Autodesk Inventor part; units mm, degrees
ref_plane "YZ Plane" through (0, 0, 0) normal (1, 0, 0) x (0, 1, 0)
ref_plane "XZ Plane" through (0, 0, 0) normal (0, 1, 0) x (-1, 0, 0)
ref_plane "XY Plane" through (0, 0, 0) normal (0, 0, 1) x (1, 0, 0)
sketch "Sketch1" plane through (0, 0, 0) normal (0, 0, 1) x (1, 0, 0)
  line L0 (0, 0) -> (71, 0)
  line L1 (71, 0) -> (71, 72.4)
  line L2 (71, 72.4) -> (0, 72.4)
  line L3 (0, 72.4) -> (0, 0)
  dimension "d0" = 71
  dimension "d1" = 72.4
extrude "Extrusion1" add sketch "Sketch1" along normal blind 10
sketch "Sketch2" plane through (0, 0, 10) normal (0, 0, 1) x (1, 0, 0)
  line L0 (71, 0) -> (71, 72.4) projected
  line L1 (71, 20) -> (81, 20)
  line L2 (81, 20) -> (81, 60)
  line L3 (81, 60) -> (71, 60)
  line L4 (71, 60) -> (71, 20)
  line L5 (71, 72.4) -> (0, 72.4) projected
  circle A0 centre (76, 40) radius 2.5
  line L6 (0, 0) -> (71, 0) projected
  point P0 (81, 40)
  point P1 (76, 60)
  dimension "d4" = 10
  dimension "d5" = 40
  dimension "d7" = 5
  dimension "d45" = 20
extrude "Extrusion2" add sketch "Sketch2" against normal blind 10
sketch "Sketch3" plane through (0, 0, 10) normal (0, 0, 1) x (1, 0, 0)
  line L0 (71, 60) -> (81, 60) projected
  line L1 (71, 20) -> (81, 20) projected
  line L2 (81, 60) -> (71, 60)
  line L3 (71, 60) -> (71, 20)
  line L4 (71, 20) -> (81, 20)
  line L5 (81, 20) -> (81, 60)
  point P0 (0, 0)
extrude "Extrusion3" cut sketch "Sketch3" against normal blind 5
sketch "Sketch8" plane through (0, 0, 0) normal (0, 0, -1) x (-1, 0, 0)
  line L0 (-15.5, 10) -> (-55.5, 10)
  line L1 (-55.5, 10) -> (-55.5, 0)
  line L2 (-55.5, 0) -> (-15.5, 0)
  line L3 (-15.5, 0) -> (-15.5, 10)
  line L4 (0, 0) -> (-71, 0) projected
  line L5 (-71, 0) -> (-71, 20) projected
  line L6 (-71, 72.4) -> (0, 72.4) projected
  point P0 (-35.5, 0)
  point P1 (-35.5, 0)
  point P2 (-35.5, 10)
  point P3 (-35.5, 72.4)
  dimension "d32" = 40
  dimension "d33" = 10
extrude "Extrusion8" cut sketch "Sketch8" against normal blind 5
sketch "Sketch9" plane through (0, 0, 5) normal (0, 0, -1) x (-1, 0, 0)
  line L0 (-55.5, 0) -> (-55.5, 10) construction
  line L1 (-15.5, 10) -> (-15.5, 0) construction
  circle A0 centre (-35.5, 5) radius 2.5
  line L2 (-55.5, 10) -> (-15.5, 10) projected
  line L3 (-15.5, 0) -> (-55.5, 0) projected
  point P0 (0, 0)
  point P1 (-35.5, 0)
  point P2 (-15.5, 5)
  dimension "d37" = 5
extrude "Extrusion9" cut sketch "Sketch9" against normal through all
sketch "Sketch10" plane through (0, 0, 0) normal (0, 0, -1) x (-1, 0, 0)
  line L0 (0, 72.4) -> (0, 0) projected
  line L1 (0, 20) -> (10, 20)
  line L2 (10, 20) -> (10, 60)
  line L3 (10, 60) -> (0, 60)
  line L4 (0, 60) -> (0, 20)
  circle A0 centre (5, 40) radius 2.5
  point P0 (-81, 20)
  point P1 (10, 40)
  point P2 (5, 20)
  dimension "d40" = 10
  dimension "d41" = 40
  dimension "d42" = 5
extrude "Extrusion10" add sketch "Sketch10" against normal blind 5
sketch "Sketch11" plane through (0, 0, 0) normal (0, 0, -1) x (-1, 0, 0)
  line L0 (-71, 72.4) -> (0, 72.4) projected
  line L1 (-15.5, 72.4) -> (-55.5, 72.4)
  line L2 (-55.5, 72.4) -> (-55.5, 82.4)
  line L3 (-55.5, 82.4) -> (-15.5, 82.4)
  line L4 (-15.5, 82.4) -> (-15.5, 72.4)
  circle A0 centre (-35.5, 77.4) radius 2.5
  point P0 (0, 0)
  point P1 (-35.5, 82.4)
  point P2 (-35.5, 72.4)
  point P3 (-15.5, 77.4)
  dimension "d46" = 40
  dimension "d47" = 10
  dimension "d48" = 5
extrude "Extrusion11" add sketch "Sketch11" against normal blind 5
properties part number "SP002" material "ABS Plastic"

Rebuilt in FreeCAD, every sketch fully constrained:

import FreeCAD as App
import Part
import Sketcher
Q = App.Units.Quantity


def add_polygon(sketch, points):
    """Adds a closed chain of lines whose ends are joined by coincident constraints."""
    first, n = sketch.GeometryCount, len(points)
    for a, b in zip(points, points[1:] + points[:1]):
        sketch.addGeometry(Part.LineSegment(App.Vector(*a, 0), App.Vector(*b, 0)), False)
    for i in range(n):
        sketch.addConstraint(Sketcher.Constraint("Coincident", first + i, 2, first + (i + 1) % n, 1))

doc = App.newDocument("Part")
body = doc.addObject("PartDesign::Body", "Body")

sketch1 = body.newObject("Sketcher::SketchObject", "Sketch")
sketch1.AttachmentSupport = (doc.getObject("XY_Plane"), [""])
sketch1.MapMode = "FlatFace"
add_polygon(sketch1, [(0, 72.4), (0, 0), (71, 0), (71, 72.4)])
sketch1.addConstraint([
    Sketcher.Constraint("Vertical", 0),
    Sketcher.Constraint("Horizontal", 1),
    Sketcher.Constraint("Vertical", 2),
    Sketcher.Constraint("Horizontal", 3),
    Sketcher.Constraint("Coincident", 0, 2, -1, 1),
    Sketcher.Constraint("DistanceX", 1, 1, 1, 2, Q("71 mm")),
    Sketcher.Constraint("DistanceY", 0, 2, 0, 1, Q("72.4 mm")),
])
pad1 = body.newObject("PartDesign::Pad", "Pad")
pad1.Profile = sketch1
pad1.Length = 10

sketch2 = body.newObject("Sketcher::SketchObject", "Sketch001")
sketch2.AttachmentSupport = (doc.getObject("XY_Plane"), [""])
sketch2.MapMode = "FlatFace"
sketch2.AttachmentOffset = App.Placement(App.Vector(0, 0, 10), App.Rotation())
add_polygon(sketch2, [(71, 60), (71, 20), (81, 20), (81, 60)])
sketch2.addGeometry(Part.Circle(App.Vector(76, 40, 0), App.Vector(0, 0, 1), 2.5), False)
sketch2.addConstraint([
    Sketcher.Constraint("Vertical", 0),
    Sketcher.Constraint("Horizontal", 1),
    Sketcher.Constraint("Vertical", 2),
    Sketcher.Constraint("Horizontal", 3),
    Sketcher.Constraint("Diameter", 4, Q("5 mm")),
    Sketcher.Constraint("DistanceX", 1, 1, 1, 2, Q("10 mm")),
    Sketcher.Constraint("DistanceY", 0, 2, 0, 1, Q("40 mm")),
    Sketcher.Constraint("DistanceY", -1, 1, 4, 3, Q("40 mm")),
    Sketcher.Constraint("DistanceY", -1, 1, 0, 2, Q("20 mm")),
    Sketcher.Constraint("DistanceX", 0, 2, 4, 3, Q("5 mm")),
    Sketcher.Constraint("DistanceX", -1, 1, 4, 3, Q("76 mm")),
])
pad2 = body.newObject("PartDesign::Pad", "Pad001")
pad2.Profile = sketch2
pad2.Length = 10
pad2.Reversed = True

sketch3 = body.newObject("Sketcher::SketchObject", "Sketch002")
sketch3.AttachmentSupport = (doc.getObject("XY_Plane"), [""])
sketch3.MapMode = "FlatFace"
sketch3.AttachmentOffset = App.Placement(App.Vector(0, 0, 10), App.Rotation())
add_polygon(sketch3, [(81, 60), (71, 60), (71, 20), (81, 20)])
sketch3.addConstraint([
    Sketcher.Constraint("Horizontal", 0),
    Sketcher.Constraint("Vertical", 1),
    Sketcher.Constraint("Horizontal", 2),
    Sketcher.Constraint("Vertical", 3),
    Sketcher.Constraint("DistanceX", 0, 2, 0, 1, Q("10 mm")),
    Sketcher.Constraint("DistanceY", 1, 2, 1, 1, Q("40 mm")),
    Sketcher.Constraint("DistanceX", -1, 1, 0, 2, Q("71 mm")),
    Sketcher.Constraint("DistanceY", -1, 1, 0, 2, Q("60 mm")),
])
pocket1 = body.newObject("PartDesign::Pocket", "Pocket")
pocket1.Profile = sketch3
pocket1.Length = 5

sketch4 = body.newObject("Sketcher::SketchObject", "Sketch003")
sketch4.AttachmentSupport = (doc.getObject("XY_Plane"), [""])
sketch4.MapMode = "FlatFace"
add_polygon(sketch4, [(15.5, 0), (15.5, 10), (55.5, 10), (55.5, 0)])
sketch4.addConstraint([
    Sketcher.Constraint("Vertical", 0),
    Sketcher.Constraint("Horizontal", 1),
    Sketcher.Constraint("Vertical", 2),
    Sketcher.Constraint("Horizontal", 3),
    Sketcher.Constraint("PointOnObject", 2, 2, -1),
    Sketcher.Constraint("DistanceX", 1, 1, 1, 2, Q("40 mm")),
    Sketcher.Constraint("DistanceY", 0, 1, 0, 2, Q("10 mm")),
    Sketcher.Constraint("DistanceX", -1, 1, 0, 2, Q("15.5 mm")),
])
pocket2 = body.newObject("PartDesign::Pocket", "Pocket001")
pocket2.Profile = sketch4
pocket2.Length = 5
pocket2.Reversed = True

sketch5 = body.newObject("Sketcher::SketchObject", "Sketch004")
sketch5.AttachmentSupport = (doc.getObject("XY_Plane"), [""])
sketch5.MapMode = "FlatFace"
sketch5.AttachmentOffset = App.Placement(App.Vector(0, 0, 5), App.Rotation())
sketch5.addGeometry(Part.Circle(App.Vector(35.5, 5, 0), App.Vector(0, 0, 1), 2.5), False)
sketch5.addConstraint([
    Sketcher.Constraint("Diameter", 0, Q("5 mm")),
    Sketcher.Constraint("DistanceY", -1, 1, 0, 3, Q("5 mm")),
    Sketcher.Constraint("DistanceX", -1, 1, 0, 3, Q("35.5 mm")),
])
pocket3 = body.newObject("PartDesign::Pocket", "Pocket002")
pocket3.Profile = sketch5
pocket3.Type = "ThroughAll"
pocket3.Reversed = True

sketch6 = body.newObject("Sketcher::SketchObject", "Sketch005")
sketch6.AttachmentSupport = (doc.getObject("XY_Plane"), [""])
sketch6.MapMode = "FlatFace"
add_polygon(sketch6, [(-10, 60), (0, 60), (0, 20), (-10, 20)])
sketch6.addGeometry(Part.Circle(App.Vector(-5, 40, 0), App.Vector(0, 0, 1), 2.5), False)
sketch6.addConstraint([
    Sketcher.Constraint("Horizontal", 0),
    Sketcher.Constraint("Vertical", 1),
    Sketcher.Constraint("Horizontal", 2),
    Sketcher.Constraint("Vertical", 3),
    Sketcher.Constraint("PointOnObject", 0, 2, -2),
    Sketcher.Constraint("Diameter", 4, Q("5 mm")),
    Sketcher.Constraint("DistanceX", 0, 1, 0, 2, Q("10 mm")),
    Sketcher.Constraint("DistanceY", 1, 2, 1, 1, Q("40 mm")),
    Sketcher.Constraint("DistanceX", 4, 3, -1, 1, Q("5 mm")),
    Sketcher.Constraint("DistanceY", -1, 1, 4, 3, Q("40 mm")),
    Sketcher.Constraint("DistanceY", -1, 1, 0, 2, Q("60 mm")),
])
pad3 = body.newObject("PartDesign::Pad", "Pad002")
pad3.Profile = sketch6
pad3.Length = 5

sketch7 = body.newObject("Sketcher::SketchObject", "Sketch006")
sketch7.AttachmentSupport = (doc.getObject("XY_Plane"), [""])
sketch7.MapMode = "FlatFace"
add_polygon(sketch7, [(55.5, 82.4), (55.5, 72.4), (15.5, 72.4), (15.5, 82.4)])
sketch7.addGeometry(Part.Circle(App.Vector(35.5, 77.4, 0), App.Vector(0, 0, 1), 2.5), False)
sketch7.addConstraint([
    Sketcher.Constraint("Vertical", 0),
    Sketcher.Constraint("Horizontal", 1),
    Sketcher.Constraint("Vertical", 2),
    Sketcher.Constraint("Horizontal", 3),
    Sketcher.Constraint("Diameter", 4, Q("5 mm")),
    Sketcher.Constraint("DistanceX", 1, 2, 1, 1, Q("40 mm")),
    Sketcher.Constraint("DistanceY", 0, 2, 0, 1, Q("10 mm")),
    Sketcher.Constraint("DistanceY", 0, 2, 4, 3, Q("5 mm")),
    Sketcher.Constraint("DistanceX", 4, 3, 0, 2, Q("20 mm")),
    Sketcher.Constraint("DistanceX", -1, 1, 4, 3, Q("35.5 mm")),
    Sketcher.Constraint("DistanceY", -1, 1, 4, 3, Q("77.4 mm")),
])
pad4 = body.newObject("PartDesign::Pad", "Pad003")
pad4.Profile = sketch7
pad4.Length = 5

doc.recompute()
